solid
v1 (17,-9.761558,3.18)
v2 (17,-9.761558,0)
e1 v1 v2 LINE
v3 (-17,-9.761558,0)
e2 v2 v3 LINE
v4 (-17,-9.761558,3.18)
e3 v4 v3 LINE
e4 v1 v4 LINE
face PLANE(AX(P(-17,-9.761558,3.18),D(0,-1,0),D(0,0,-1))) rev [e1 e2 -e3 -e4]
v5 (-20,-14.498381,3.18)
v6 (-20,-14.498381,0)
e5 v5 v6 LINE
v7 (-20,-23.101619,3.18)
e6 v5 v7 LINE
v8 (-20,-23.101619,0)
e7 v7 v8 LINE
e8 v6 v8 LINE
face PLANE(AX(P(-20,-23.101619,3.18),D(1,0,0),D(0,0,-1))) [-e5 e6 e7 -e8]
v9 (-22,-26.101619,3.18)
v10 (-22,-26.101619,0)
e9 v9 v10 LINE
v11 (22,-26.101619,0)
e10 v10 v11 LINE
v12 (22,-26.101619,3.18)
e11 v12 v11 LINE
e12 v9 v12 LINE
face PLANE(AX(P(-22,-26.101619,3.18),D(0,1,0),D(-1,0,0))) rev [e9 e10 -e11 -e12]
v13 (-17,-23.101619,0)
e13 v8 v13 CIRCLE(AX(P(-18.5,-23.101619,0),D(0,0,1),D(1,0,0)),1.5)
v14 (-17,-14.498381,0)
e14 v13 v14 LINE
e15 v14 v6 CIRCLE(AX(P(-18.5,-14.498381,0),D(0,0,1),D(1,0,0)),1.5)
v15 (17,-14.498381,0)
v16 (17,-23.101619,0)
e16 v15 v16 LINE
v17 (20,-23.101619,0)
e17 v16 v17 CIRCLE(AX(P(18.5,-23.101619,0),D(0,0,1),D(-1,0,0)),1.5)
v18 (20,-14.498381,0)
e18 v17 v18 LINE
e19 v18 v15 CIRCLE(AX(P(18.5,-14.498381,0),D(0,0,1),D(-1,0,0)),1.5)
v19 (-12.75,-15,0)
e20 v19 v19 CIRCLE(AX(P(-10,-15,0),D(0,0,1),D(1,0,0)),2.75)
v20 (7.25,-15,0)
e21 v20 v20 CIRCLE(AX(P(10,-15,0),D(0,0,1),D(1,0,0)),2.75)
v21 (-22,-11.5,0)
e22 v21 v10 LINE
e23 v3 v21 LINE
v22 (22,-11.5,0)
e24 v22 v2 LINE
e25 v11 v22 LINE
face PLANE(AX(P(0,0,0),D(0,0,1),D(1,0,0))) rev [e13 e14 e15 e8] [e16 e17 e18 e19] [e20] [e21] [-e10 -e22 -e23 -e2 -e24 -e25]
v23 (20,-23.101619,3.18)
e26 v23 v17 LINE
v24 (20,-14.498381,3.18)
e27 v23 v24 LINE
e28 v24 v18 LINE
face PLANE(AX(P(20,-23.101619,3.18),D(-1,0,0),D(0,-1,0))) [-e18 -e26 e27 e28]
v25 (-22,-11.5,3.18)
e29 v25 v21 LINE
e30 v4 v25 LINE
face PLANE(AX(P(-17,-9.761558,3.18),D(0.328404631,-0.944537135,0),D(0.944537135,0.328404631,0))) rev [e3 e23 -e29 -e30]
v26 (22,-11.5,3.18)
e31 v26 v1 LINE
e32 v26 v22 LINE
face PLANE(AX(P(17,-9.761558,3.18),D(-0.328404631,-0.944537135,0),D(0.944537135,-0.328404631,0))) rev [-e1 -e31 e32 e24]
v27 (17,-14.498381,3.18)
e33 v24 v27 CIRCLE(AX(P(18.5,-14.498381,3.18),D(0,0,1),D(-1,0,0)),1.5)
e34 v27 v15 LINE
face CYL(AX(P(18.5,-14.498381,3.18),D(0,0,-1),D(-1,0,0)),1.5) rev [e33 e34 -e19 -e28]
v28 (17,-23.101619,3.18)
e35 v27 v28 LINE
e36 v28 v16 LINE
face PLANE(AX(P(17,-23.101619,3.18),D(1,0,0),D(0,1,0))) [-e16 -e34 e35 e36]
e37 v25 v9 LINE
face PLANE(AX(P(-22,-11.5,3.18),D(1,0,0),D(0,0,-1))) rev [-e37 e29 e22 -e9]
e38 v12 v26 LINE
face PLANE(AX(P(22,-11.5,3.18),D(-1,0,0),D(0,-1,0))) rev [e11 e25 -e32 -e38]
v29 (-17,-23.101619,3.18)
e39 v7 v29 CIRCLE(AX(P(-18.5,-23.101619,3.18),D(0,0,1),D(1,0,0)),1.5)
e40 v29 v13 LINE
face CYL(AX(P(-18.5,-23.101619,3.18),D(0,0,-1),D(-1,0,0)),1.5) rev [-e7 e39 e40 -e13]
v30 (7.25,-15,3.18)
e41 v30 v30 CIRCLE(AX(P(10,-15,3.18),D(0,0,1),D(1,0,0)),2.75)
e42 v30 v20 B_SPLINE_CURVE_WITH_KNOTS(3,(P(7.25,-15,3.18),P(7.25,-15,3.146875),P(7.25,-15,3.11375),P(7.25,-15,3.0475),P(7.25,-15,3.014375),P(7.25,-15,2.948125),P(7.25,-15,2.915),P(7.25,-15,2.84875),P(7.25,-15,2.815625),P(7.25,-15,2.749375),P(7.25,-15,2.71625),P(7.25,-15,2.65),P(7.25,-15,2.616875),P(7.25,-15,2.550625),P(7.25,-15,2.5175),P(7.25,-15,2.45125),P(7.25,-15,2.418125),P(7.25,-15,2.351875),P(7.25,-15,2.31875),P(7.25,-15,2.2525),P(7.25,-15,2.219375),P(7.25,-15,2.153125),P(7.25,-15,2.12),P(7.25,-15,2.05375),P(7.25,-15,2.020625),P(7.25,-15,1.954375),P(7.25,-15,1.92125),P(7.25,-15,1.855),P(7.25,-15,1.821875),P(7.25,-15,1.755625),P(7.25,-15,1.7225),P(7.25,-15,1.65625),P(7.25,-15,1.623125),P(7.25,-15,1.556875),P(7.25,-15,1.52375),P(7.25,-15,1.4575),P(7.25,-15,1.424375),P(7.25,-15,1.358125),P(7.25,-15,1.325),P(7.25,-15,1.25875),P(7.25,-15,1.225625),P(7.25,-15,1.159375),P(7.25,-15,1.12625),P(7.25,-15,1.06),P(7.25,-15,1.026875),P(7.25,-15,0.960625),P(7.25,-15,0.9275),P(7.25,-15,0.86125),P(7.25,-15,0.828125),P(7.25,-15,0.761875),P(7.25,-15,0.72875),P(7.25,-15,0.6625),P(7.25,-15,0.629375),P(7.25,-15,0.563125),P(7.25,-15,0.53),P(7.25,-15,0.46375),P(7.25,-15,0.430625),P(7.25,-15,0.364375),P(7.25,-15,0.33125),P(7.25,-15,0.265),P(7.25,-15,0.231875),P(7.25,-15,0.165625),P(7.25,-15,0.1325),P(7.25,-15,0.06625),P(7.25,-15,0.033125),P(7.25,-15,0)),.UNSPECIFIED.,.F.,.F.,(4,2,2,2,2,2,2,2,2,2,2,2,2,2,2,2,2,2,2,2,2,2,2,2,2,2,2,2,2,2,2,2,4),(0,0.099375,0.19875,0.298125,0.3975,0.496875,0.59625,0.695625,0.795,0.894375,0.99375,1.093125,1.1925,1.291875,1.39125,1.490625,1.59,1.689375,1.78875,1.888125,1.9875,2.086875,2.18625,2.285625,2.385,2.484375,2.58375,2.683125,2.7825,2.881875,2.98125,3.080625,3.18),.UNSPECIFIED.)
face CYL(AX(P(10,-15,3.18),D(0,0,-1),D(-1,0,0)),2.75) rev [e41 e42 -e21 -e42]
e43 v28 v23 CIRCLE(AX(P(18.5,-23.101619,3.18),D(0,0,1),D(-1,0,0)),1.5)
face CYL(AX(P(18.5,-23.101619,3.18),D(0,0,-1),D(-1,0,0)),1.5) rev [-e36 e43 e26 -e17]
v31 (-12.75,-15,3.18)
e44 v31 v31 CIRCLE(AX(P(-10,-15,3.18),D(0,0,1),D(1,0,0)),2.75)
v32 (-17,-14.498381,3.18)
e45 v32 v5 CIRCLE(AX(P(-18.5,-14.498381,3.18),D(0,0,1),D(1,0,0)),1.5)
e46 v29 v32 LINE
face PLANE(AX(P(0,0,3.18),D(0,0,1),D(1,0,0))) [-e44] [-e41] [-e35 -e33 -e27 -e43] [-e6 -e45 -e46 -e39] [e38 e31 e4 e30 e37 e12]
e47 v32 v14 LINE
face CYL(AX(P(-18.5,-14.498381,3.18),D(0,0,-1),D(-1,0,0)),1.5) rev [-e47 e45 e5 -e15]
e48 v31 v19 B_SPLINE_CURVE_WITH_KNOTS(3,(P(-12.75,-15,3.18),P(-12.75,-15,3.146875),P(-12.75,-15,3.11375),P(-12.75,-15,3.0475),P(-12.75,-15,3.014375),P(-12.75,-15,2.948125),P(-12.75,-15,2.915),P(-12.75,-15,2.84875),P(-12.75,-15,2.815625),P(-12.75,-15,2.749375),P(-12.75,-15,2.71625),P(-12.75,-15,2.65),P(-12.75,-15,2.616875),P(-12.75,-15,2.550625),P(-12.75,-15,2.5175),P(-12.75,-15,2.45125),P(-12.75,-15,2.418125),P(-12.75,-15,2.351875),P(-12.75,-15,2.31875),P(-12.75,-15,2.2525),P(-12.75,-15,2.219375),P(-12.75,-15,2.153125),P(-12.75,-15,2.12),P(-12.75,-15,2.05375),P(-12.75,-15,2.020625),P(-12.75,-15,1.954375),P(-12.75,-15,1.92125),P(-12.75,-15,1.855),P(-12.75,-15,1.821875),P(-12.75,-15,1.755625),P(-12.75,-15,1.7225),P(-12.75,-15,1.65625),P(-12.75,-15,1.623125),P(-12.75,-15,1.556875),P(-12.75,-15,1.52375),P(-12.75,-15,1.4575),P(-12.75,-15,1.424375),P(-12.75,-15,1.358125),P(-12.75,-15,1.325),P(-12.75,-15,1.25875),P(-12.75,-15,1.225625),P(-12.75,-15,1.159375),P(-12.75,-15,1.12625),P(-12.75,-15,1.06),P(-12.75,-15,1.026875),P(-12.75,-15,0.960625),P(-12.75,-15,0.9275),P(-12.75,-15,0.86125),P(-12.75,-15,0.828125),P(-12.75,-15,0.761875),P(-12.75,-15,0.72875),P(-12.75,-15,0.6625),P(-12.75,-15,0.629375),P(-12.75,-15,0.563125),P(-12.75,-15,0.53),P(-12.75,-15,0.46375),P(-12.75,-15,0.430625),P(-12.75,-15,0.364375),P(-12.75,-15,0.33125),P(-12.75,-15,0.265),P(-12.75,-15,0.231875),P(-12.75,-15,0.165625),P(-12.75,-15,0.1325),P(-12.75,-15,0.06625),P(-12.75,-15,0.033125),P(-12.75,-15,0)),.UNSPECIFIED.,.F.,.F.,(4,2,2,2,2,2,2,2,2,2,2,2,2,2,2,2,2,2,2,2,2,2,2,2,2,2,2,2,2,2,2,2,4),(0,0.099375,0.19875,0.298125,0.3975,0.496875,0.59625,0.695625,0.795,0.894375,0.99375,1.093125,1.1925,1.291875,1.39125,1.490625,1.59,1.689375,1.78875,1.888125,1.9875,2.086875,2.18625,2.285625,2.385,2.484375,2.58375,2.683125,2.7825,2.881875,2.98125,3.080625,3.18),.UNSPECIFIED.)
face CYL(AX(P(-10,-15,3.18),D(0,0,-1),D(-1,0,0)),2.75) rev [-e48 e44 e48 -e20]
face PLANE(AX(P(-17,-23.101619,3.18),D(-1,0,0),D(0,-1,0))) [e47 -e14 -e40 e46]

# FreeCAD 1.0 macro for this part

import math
import FreeCAD as App
import Part
import Sketcher

V = App.Vector

doc = App.newDocument("Part")
body = doc.addObject("PartDesign::Body", "Body")

sketch1 = body.newObject("Sketcher::SketchObject", "Sketch")
sketch1.AttachmentSupport = (doc.getObject("XY_Plane"), [""])
sketch1.MapMode = "FlatFace"
sketch1.addGeometry([
    Part.LineSegment(V(-22, -26.1, 0), V(22, -26.1, 0)),
    Part.LineSegment(V(22, -26.1, 0), V(22, -11.5, 0)),
    Part.LineSegment(V(22, -11.5, 0), V(17, -9.8, 0)),
    Part.LineSegment(V(17, -9.8, 0), V(-17, -9.8, 0)),
    Part.LineSegment(V(-17, -9.8, 0), V(-22, -11.5, 0)),
    Part.LineSegment(V(-22, -11.5, 0), V(-22, -26.1, 0)),
    Part.ArcOfCircle(Part.Circle(V(-18.5, -23.1, 0), V(0, 0, 1), 1.5), math.radians(180), math.radians(360)),
    Part.LineSegment(V(-20, -23.1, 0), V(-20, -14.5, 0)),
    Part.ArcOfCircle(Part.Circle(V(-18.5, -14.5, 0), V(0, 0, 1), 1.5), math.radians(0), math.radians(180)),
    Part.LineSegment(V(-17, -14.5, 0), V(-17, -23.1, 0)),
    Part.LineSegment(V(20, -14.5, 0), V(20, -23.1, 0)),
    Part.ArcOfCircle(Part.Circle(V(18.5, -23.1, 0), V(0, 0, 1), 1.5), math.radians(180), math.radians(360)),
    Part.LineSegment(V(17, -23.1, 0), V(17, -14.5, 0)),
    Part.ArcOfCircle(Part.Circle(V(18.5, -14.5, 0), V(0, 0, 1), 1.5), math.radians(0), math.radians(180)),
    Part.Circle(V(-10, -15, 0), V(0, 0, 1), 2.8),
    Part.Circle(V(10, -15, 0), V(0, 0, 1), 2.8),
], False)
sketch1.addConstraint([
    Sketcher.Constraint("Coincident", 0, 2, 1, 1),
    Sketcher.Constraint("Coincident", 1, 2, 2, 1),
    Sketcher.Constraint("Coincident", 2, 2, 3, 1),
    Sketcher.Constraint("Coincident", 3, 2, 4, 1),
    Sketcher.Constraint("Coincident", 4, 2, 5, 1),
    Sketcher.Constraint("Coincident", 5, 2, 0, 1),
    Sketcher.Constraint("Tangent", 6, 1, 7, 1),
    Sketcher.Constraint("Tangent", 7, 2, 8, 2),
    Sketcher.Constraint("Tangent", 8, 1, 9, 1),
    Sketcher.Constraint("Tangent", 9, 2, 6, 2),
    Sketcher.Constraint("Tangent", 10, 2, 11, 2),
    Sketcher.Constraint("Tangent", 11, 1, 12, 1),
    Sketcher.Constraint("Tangent", 12, 2, 13, 2),
    Sketcher.Constraint("Tangent", 13, 1, 10, 1),
    Sketcher.Constraint("Horizontal", 0),
    Sketcher.Constraint("Vertical", 1),
    Sketcher.Constraint("Horizontal", 3),
    Sketcher.Constraint("Vertical", 5),
    Sketcher.Constraint("Vertical", 7),
    Sketcher.Constraint("Vertical", 9),
    Sketcher.Constraint("Vertical", 10),
    Sketcher.Constraint("Vertical", 12),
    Sketcher.Constraint("Equal", 8, 11),
    Sketcher.Constraint("Equal", 14, 15),
    Sketcher.Constraint("Symmetric", 6, 3, 11, 3, -2),
    Sketcher.Constraint("Symmetric", 14, 3, 15, 3, -2),
    Sketcher.Constraint("Symmetric", 1, 2, 4, 2, -2),
    Sketcher.Constraint("Horizontal", 8, 3, 13, 3),
    Sketcher.Constraint("Vertical", 3, 2, 8, 1),
    Sketcher.Constraint("Vertical", 2, 2, 11, 1),
    Sketcher.Constraint("Diameter", 14, 5.5),
    Sketcher.Constraint("Radius", 6, 1.5),
    Sketcher.Constraint("DistanceX", 0, 1, 0, 2, 44.0),
    Sketcher.Constraint("DistanceX", 3, 2, 3, 1, 34.0),
    Sketcher.Constraint("DistanceX", 14, 3, -1, 1, 10.0),
    Sketcher.Constraint("DistanceY", 14, 3, -1, 1, 15.0),
    Sketcher.Constraint("DistanceY", 0, 2, 11, 3, 3.0),
    Sketcher.Constraint("DistanceY", 1, 2, -1, 1, 11.5),
    Sketcher.Constraint("Distance", 2, 5.293598),
    Sketcher.Constraint("DistanceY", 1, 1, 1, 2, 14.601619),
    Sketcher.Constraint("DistanceY", 7, 1, 7, 2, 8.603238),
])
pad1 = body.newObject("PartDesign::Pad", "Pad")
pad1.Profile = sketch1
pad1.Length = 3.18

doc.recompute()
